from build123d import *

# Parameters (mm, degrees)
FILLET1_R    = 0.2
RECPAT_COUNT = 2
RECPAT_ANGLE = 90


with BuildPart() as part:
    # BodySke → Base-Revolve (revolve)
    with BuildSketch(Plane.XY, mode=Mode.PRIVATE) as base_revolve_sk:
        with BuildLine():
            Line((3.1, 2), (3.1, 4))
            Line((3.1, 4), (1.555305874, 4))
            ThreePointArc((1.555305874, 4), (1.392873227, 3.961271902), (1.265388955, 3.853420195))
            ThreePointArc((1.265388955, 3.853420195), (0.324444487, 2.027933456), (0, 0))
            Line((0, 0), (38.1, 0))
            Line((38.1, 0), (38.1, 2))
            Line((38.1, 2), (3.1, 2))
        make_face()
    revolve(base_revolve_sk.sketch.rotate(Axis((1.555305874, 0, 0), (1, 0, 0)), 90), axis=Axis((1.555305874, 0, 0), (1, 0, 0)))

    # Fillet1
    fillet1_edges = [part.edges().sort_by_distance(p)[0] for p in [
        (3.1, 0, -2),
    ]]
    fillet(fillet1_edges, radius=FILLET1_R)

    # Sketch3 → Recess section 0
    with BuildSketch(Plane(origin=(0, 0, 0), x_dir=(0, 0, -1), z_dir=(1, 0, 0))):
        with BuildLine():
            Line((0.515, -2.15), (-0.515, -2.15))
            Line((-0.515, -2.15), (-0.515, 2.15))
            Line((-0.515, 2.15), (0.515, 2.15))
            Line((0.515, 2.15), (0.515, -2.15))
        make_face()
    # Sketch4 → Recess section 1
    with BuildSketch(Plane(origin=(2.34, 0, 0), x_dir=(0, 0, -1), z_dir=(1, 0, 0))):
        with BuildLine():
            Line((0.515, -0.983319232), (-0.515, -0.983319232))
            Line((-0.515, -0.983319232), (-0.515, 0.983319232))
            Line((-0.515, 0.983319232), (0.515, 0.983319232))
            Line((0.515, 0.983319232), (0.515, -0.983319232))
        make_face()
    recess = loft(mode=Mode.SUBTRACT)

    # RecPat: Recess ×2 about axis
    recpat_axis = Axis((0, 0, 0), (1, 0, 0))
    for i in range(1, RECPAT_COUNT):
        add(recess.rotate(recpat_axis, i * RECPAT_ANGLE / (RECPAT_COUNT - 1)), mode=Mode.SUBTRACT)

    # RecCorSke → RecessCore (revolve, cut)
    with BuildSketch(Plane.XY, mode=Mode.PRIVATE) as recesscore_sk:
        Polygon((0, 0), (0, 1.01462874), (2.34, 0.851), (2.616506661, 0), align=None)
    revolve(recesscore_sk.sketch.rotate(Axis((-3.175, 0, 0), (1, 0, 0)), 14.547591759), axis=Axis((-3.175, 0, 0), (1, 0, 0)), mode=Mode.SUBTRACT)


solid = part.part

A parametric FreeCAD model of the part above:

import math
import FreeCAD as App
import Part
import Sketcher
from FreeCAD import Vector
Q = App.Units.Quantity


def edges_at(feature, points):
    """Names of the edges that pass closest to the given points."""
    edges = feature.Shape.Edges
    near = lambda p: min(range(len(edges)), key=lambda i: edges[i].distToShape(Part.Vertex(*p))[0])
    return sorted({f"Edge{near(p) + 1}" for p in points})

doc = App.newDocument("Part")
body = doc.addObject("PartDesign::Body", "Body")

# Sketch on XY plane
sketch1 = doc.addObject("Sketcher::SketchObject", "Sketch")
body.addObject(sketch1)
sketch1.AttachmentSupport = (doc.XY_Plane, [""])
sketch1.MapMode = "FlatFace"
sketch1.addGeometry(Part.LineSegment(Vector(3.1, 2, 0), Vector(3.1, 4, 0)), False)
sketch1.addGeometry(Part.LineSegment(Vector(3.1, 4, 0), Vector(1.56, 4, 0)), False)
sketch1.addGeometry(Part.ArcOfCircle(Part.Circle(Vector(1.56, 3.64, 0), Vector(0, 0, 1), 0.36), math.radians(90), math.radians(144)), False)
sketch1.addGeometry(Part.ArcOfCircle(Part.Circle(Vector(6.5, 0, 0), Vector(0, 0, 1), 6.5), math.radians(144), math.radians(180)), False)
sketch1.addGeometry(Part.LineSegment(Vector(0, 0, 0), Vector(38.1, 0, 0)), False)
sketch1.addGeometry(Part.LineSegment(Vector(38.1, 0, 0), Vector(38.1, 2, 0)), False)
sketch1.addGeometry(Part.LineSegment(Vector(38.1, 2, 0), Vector(3.1, 2, 0)), False)
sketch1.addConstraint(Sketcher.Constraint("Coincident", 0, 2, 1, 1))
sketch1.addConstraint(Sketcher.Constraint("Tangent", 1, 2, 2, 1))
sketch1.addConstraint(Sketcher.Constraint("Tangent", 2, 2, 3, 1))
sketch1.addConstraint(Sketcher.Constraint("Coincident", 3, 2, 4, 1))
sketch1.addConstraint(Sketcher.Constraint("Coincident", 4, 2, 5, 1))
sketch1.addConstraint(Sketcher.Constraint("Coincident", 5, 2, 6, 1))
sketch1.addConstraint(Sketcher.Constraint("Coincident", 6, 2, 0, 1))
sketch1.addConstraint(Sketcher.Constraint("Vertical", 0))
sketch1.addConstraint(Sketcher.Constraint("Horizontal", 1))
sketch1.addConstraint(Sketcher.Constraint("Horizontal", 4))
sketch1.addConstraint(Sketcher.Constraint("Vertical", 5))
sketch1.addConstraint(Sketcher.Constraint("Horizontal", 6))
sketch1.addConstraint(Sketcher.Constraint("Coincident", 3, 2, -1, 1))
sketch1.addConstraint(Sketcher.Constraint("PointOnObject", 3, 3, -1))
sketch1.addConstraint(Sketcher.Constraint("Equal", 0, 5))
sketch1.addConstraint(Sketcher.Constraint("Radius", 3, Q("6.5 mm")))
sketch1.addConstraint(Sketcher.Constraint("DistanceX", 6, 2, 6, 1, Q("35 mm")))
sketch1.addConstraint(Sketcher.Constraint("DistanceY", 0, 1, 0, 2, Q("2 mm")))
sketch1.addConstraint(Sketcher.Constraint("Radius", 2, Q("0.36 mm")))
sketch1.addConstraint(Sketcher.Constraint("DistanceX", 4, 1, 4, 2, Q("38.1 mm")))
revolution = doc.addObject("PartDesign::Revolution", "Revolution")
body.addObject(revolution)
revolution.Profile = sketch1
revolution.ReferenceAxis = (sketch1, ["H_Axis"])
revolution.Angle = 360
doc.recompute()

fillet = doc.addObject("PartDesign::Fillet", "Fillet")
body.addObject(fillet)
fillet.Base = (revolution, edges_at(revolution, [(3.1, 0, -2)]))
fillet.Radius = 0.2

# Sketch on YZ plane
sketch2 = doc.addObject("Sketcher::SketchObject", "Sketch001")
body.addObject(sketch2)
sketch2.AttachmentSupport = (doc.YZ_Plane, [""])
sketch2.MapMode = "FlatFace"
sketch2.addGeometry(Part.LineSegment(Vector(-2.1, 0.5, 0), Vector(-2.1, -0.5, 0)), False)
sketch2.addGeometry(Part.LineSegment(Vector(-2.1, -0.5, 0), Vector(2.1, -0.5, 0)), False)
sketch2.addGeometry(Part.LineSegment(Vector(2.1, -0.5, 0), Vector(2.1, 0.5, 0)), False)
sketch2.addGeometry(Part.LineSegment(Vector(2.1, 0.5, 0), Vector(-2.1, 0.5, 0)), False)
sketch2.addConstraint(Sketcher.Constraint("Coincident", 0, 2, 1, 1))
sketch2.addConstraint(Sketcher.Constraint("Coincident", 1, 2, 2, 1))
sketch2.addConstraint(Sketcher.Constraint("Coincident", 2, 2, 3, 1))
sketch2.addConstraint(Sketcher.Constraint("Coincident", 3, 2, 0, 1))
sketch2.addConstraint(Sketcher.Constraint("Vertical", 0))
sketch2.addConstraint(Sketcher.Constraint("Horizontal", 1))
sketch2.addConstraint(Sketcher.Constraint("Vertical", 2))
sketch2.addConstraint(Sketcher.Constraint("Horizontal", 3))
sketch2.addConstraint(Sketcher.Constraint("Symmetric", 0, 2, 2, 2, -1, 1))
sketch2.addConstraint(Sketcher.Constraint("DistanceX", 1, 1, 1, 2, Q("4.3 mm")))
sketch2.addConstraint(Sketcher.Constraint("DistanceY", 0, 2, 0, 1, Q("1.03 mm")))

# Sketch on YZ plane
sketch3 = doc.addObject("Sketcher::SketchObject", "Sketch002")
body.addObject(sketch3)
sketch3.AttachmentSupport = (doc.YZ_Plane, [""])
sketch3.MapMode = "FlatFace"
sketch3.AttachmentOffset = App.Placement(Vector(0, 0, 2.34), App.Rotation())
sketch3.addGeometry(Part.LineSegment(Vector(-1, 0.5, 0), Vector(-1, -0.5, 0)), False)
sketch3.addGeometry(Part.LineSegment(Vector(-1, -0.5, 0), Vector(1, -0.5, 0)), False)
sketch3.addGeometry(Part.LineSegment(Vector(1, -0.5, 0), Vector(1, 0.5, 0)), False)
sketch3.addGeometry(Part.LineSegment(Vector(1, 0.5, 0), Vector(-1, 0.5, 0)), False)
sketch3.addConstraint(Sketcher.Constraint("Coincident", 0, 2, 1, 1))
sketch3.addConstraint(Sketcher.Constraint("Coincident", 1, 2, 2, 1))
sketch3.addConstraint(Sketcher.Constraint("Coincident", 2, 2, 3, 1))
sketch3.addConstraint(Sketcher.Constraint("Coincident", 3, 2, 0, 1))
sketch3.addConstraint(Sketcher.Constraint("Vertical", 0))
sketch3.addConstraint(Sketcher.Constraint("Horizontal", 1))
sketch3.addConstraint(Sketcher.Constraint("Vertical", 2))
sketch3.addConstraint(Sketcher.Constraint("Horizontal", 3))
sketch3.addConstraint(Sketcher.Constraint("Symmetric", 0, 2, 2, 2, -1, 1))
sketch3.addConstraint(Sketcher.Constraint("DistanceY", 0, 2, 0, 1, Q("1.03 mm")))
sketch3.addConstraint(Sketcher.Constraint("DistanceX", 1, 1, 1, 2, Q("1.966638 mm")))

subtractiveloft = doc.addObject("PartDesign::SubtractiveLoft", "SubtractiveLoft")
body.addObject(subtractiveloft)
subtractiveloft.Profile = sketch2
subtractiveloft.Sections = [sketch3]
doc.recompute()

polarpattern = doc.addObject("PartDesign::PolarPattern", "PolarPattern")
body.addObject(polarpattern)
polarpattern.Originals = [subtractiveloft]
polarpattern.Axis = (doc.X_Axis, [""])
polarpattern.Angle = 90
polarpattern.Occurrences = 2
body.Tip = polarpattern

# Sketch on XY plane
sketch4 = doc.addObject("Sketcher::SketchObject", "Sketch003")
body.addObject(sketch4)
sketch4.AttachmentSupport = (doc.XY_Plane, [""])
sketch4.MapMode = "FlatFace"
sketch4.addGeometry(Part.LineSegment(Vector(0, 1, 0), Vector(0, 0, 0)), False)
sketch4.addGeometry(Part.LineSegment(Vector(0, 0, 0), Vector(2.6, 0, 0)), False)
sketch4.addGeometry(Part.LineSegment(Vector(2.6, 0, 0), Vector(2.3, 0.9, 0)), False)
sketch4.addGeometry(Part.LineSegment(Vector(2.3, 0.9, 0), Vector(0, 1, 0)), False)
sketch4.addConstraint(Sketcher.Constraint("Coincident", 0, 2, 1, 1))
sketch4.addConstraint(Sketcher.Constraint("Coincident", 1, 2, 2, 1))
sketch4.addConstraint(Sketcher.Constraint("Coincident", 2, 2, 3, 1))
sketch4.addConstraint(Sketcher.Constraint("Coincident", 3, 2, 0, 1))
sketch4.addConstraint(Sketcher.Constraint("Vertical", 0))
sketch4.addConstraint(Sketcher.Constraint("Horizontal", 1))
sketch4.addConstraint(Sketcher.Constraint("Coincident", 0, 2, -1, 1))
sketch4.addConstraint(Sketcher.Constraint("Angle", 2, Q("108 deg")))
sketch4.addConstraint(Sketcher.Constraint("Angle", 3, Q("176 deg")))
sketch4.addConstraint(Sketcher.Constraint("DistanceX", -1, 1, 2, 2, Q("2.34 mm")))
sketch4.addConstraint(Sketcher.Constraint("DistanceY", -1, 1, 2, 2, Q("0.851 mm")))
groove = doc.addObject("PartDesign::Groove", "Groove")
body.addObject(groove)
groove.Profile = sketch4
groove.ReferenceAxis = (sketch4, ["H_Axis"])
groove.Angle = 360

doc.recompute()
